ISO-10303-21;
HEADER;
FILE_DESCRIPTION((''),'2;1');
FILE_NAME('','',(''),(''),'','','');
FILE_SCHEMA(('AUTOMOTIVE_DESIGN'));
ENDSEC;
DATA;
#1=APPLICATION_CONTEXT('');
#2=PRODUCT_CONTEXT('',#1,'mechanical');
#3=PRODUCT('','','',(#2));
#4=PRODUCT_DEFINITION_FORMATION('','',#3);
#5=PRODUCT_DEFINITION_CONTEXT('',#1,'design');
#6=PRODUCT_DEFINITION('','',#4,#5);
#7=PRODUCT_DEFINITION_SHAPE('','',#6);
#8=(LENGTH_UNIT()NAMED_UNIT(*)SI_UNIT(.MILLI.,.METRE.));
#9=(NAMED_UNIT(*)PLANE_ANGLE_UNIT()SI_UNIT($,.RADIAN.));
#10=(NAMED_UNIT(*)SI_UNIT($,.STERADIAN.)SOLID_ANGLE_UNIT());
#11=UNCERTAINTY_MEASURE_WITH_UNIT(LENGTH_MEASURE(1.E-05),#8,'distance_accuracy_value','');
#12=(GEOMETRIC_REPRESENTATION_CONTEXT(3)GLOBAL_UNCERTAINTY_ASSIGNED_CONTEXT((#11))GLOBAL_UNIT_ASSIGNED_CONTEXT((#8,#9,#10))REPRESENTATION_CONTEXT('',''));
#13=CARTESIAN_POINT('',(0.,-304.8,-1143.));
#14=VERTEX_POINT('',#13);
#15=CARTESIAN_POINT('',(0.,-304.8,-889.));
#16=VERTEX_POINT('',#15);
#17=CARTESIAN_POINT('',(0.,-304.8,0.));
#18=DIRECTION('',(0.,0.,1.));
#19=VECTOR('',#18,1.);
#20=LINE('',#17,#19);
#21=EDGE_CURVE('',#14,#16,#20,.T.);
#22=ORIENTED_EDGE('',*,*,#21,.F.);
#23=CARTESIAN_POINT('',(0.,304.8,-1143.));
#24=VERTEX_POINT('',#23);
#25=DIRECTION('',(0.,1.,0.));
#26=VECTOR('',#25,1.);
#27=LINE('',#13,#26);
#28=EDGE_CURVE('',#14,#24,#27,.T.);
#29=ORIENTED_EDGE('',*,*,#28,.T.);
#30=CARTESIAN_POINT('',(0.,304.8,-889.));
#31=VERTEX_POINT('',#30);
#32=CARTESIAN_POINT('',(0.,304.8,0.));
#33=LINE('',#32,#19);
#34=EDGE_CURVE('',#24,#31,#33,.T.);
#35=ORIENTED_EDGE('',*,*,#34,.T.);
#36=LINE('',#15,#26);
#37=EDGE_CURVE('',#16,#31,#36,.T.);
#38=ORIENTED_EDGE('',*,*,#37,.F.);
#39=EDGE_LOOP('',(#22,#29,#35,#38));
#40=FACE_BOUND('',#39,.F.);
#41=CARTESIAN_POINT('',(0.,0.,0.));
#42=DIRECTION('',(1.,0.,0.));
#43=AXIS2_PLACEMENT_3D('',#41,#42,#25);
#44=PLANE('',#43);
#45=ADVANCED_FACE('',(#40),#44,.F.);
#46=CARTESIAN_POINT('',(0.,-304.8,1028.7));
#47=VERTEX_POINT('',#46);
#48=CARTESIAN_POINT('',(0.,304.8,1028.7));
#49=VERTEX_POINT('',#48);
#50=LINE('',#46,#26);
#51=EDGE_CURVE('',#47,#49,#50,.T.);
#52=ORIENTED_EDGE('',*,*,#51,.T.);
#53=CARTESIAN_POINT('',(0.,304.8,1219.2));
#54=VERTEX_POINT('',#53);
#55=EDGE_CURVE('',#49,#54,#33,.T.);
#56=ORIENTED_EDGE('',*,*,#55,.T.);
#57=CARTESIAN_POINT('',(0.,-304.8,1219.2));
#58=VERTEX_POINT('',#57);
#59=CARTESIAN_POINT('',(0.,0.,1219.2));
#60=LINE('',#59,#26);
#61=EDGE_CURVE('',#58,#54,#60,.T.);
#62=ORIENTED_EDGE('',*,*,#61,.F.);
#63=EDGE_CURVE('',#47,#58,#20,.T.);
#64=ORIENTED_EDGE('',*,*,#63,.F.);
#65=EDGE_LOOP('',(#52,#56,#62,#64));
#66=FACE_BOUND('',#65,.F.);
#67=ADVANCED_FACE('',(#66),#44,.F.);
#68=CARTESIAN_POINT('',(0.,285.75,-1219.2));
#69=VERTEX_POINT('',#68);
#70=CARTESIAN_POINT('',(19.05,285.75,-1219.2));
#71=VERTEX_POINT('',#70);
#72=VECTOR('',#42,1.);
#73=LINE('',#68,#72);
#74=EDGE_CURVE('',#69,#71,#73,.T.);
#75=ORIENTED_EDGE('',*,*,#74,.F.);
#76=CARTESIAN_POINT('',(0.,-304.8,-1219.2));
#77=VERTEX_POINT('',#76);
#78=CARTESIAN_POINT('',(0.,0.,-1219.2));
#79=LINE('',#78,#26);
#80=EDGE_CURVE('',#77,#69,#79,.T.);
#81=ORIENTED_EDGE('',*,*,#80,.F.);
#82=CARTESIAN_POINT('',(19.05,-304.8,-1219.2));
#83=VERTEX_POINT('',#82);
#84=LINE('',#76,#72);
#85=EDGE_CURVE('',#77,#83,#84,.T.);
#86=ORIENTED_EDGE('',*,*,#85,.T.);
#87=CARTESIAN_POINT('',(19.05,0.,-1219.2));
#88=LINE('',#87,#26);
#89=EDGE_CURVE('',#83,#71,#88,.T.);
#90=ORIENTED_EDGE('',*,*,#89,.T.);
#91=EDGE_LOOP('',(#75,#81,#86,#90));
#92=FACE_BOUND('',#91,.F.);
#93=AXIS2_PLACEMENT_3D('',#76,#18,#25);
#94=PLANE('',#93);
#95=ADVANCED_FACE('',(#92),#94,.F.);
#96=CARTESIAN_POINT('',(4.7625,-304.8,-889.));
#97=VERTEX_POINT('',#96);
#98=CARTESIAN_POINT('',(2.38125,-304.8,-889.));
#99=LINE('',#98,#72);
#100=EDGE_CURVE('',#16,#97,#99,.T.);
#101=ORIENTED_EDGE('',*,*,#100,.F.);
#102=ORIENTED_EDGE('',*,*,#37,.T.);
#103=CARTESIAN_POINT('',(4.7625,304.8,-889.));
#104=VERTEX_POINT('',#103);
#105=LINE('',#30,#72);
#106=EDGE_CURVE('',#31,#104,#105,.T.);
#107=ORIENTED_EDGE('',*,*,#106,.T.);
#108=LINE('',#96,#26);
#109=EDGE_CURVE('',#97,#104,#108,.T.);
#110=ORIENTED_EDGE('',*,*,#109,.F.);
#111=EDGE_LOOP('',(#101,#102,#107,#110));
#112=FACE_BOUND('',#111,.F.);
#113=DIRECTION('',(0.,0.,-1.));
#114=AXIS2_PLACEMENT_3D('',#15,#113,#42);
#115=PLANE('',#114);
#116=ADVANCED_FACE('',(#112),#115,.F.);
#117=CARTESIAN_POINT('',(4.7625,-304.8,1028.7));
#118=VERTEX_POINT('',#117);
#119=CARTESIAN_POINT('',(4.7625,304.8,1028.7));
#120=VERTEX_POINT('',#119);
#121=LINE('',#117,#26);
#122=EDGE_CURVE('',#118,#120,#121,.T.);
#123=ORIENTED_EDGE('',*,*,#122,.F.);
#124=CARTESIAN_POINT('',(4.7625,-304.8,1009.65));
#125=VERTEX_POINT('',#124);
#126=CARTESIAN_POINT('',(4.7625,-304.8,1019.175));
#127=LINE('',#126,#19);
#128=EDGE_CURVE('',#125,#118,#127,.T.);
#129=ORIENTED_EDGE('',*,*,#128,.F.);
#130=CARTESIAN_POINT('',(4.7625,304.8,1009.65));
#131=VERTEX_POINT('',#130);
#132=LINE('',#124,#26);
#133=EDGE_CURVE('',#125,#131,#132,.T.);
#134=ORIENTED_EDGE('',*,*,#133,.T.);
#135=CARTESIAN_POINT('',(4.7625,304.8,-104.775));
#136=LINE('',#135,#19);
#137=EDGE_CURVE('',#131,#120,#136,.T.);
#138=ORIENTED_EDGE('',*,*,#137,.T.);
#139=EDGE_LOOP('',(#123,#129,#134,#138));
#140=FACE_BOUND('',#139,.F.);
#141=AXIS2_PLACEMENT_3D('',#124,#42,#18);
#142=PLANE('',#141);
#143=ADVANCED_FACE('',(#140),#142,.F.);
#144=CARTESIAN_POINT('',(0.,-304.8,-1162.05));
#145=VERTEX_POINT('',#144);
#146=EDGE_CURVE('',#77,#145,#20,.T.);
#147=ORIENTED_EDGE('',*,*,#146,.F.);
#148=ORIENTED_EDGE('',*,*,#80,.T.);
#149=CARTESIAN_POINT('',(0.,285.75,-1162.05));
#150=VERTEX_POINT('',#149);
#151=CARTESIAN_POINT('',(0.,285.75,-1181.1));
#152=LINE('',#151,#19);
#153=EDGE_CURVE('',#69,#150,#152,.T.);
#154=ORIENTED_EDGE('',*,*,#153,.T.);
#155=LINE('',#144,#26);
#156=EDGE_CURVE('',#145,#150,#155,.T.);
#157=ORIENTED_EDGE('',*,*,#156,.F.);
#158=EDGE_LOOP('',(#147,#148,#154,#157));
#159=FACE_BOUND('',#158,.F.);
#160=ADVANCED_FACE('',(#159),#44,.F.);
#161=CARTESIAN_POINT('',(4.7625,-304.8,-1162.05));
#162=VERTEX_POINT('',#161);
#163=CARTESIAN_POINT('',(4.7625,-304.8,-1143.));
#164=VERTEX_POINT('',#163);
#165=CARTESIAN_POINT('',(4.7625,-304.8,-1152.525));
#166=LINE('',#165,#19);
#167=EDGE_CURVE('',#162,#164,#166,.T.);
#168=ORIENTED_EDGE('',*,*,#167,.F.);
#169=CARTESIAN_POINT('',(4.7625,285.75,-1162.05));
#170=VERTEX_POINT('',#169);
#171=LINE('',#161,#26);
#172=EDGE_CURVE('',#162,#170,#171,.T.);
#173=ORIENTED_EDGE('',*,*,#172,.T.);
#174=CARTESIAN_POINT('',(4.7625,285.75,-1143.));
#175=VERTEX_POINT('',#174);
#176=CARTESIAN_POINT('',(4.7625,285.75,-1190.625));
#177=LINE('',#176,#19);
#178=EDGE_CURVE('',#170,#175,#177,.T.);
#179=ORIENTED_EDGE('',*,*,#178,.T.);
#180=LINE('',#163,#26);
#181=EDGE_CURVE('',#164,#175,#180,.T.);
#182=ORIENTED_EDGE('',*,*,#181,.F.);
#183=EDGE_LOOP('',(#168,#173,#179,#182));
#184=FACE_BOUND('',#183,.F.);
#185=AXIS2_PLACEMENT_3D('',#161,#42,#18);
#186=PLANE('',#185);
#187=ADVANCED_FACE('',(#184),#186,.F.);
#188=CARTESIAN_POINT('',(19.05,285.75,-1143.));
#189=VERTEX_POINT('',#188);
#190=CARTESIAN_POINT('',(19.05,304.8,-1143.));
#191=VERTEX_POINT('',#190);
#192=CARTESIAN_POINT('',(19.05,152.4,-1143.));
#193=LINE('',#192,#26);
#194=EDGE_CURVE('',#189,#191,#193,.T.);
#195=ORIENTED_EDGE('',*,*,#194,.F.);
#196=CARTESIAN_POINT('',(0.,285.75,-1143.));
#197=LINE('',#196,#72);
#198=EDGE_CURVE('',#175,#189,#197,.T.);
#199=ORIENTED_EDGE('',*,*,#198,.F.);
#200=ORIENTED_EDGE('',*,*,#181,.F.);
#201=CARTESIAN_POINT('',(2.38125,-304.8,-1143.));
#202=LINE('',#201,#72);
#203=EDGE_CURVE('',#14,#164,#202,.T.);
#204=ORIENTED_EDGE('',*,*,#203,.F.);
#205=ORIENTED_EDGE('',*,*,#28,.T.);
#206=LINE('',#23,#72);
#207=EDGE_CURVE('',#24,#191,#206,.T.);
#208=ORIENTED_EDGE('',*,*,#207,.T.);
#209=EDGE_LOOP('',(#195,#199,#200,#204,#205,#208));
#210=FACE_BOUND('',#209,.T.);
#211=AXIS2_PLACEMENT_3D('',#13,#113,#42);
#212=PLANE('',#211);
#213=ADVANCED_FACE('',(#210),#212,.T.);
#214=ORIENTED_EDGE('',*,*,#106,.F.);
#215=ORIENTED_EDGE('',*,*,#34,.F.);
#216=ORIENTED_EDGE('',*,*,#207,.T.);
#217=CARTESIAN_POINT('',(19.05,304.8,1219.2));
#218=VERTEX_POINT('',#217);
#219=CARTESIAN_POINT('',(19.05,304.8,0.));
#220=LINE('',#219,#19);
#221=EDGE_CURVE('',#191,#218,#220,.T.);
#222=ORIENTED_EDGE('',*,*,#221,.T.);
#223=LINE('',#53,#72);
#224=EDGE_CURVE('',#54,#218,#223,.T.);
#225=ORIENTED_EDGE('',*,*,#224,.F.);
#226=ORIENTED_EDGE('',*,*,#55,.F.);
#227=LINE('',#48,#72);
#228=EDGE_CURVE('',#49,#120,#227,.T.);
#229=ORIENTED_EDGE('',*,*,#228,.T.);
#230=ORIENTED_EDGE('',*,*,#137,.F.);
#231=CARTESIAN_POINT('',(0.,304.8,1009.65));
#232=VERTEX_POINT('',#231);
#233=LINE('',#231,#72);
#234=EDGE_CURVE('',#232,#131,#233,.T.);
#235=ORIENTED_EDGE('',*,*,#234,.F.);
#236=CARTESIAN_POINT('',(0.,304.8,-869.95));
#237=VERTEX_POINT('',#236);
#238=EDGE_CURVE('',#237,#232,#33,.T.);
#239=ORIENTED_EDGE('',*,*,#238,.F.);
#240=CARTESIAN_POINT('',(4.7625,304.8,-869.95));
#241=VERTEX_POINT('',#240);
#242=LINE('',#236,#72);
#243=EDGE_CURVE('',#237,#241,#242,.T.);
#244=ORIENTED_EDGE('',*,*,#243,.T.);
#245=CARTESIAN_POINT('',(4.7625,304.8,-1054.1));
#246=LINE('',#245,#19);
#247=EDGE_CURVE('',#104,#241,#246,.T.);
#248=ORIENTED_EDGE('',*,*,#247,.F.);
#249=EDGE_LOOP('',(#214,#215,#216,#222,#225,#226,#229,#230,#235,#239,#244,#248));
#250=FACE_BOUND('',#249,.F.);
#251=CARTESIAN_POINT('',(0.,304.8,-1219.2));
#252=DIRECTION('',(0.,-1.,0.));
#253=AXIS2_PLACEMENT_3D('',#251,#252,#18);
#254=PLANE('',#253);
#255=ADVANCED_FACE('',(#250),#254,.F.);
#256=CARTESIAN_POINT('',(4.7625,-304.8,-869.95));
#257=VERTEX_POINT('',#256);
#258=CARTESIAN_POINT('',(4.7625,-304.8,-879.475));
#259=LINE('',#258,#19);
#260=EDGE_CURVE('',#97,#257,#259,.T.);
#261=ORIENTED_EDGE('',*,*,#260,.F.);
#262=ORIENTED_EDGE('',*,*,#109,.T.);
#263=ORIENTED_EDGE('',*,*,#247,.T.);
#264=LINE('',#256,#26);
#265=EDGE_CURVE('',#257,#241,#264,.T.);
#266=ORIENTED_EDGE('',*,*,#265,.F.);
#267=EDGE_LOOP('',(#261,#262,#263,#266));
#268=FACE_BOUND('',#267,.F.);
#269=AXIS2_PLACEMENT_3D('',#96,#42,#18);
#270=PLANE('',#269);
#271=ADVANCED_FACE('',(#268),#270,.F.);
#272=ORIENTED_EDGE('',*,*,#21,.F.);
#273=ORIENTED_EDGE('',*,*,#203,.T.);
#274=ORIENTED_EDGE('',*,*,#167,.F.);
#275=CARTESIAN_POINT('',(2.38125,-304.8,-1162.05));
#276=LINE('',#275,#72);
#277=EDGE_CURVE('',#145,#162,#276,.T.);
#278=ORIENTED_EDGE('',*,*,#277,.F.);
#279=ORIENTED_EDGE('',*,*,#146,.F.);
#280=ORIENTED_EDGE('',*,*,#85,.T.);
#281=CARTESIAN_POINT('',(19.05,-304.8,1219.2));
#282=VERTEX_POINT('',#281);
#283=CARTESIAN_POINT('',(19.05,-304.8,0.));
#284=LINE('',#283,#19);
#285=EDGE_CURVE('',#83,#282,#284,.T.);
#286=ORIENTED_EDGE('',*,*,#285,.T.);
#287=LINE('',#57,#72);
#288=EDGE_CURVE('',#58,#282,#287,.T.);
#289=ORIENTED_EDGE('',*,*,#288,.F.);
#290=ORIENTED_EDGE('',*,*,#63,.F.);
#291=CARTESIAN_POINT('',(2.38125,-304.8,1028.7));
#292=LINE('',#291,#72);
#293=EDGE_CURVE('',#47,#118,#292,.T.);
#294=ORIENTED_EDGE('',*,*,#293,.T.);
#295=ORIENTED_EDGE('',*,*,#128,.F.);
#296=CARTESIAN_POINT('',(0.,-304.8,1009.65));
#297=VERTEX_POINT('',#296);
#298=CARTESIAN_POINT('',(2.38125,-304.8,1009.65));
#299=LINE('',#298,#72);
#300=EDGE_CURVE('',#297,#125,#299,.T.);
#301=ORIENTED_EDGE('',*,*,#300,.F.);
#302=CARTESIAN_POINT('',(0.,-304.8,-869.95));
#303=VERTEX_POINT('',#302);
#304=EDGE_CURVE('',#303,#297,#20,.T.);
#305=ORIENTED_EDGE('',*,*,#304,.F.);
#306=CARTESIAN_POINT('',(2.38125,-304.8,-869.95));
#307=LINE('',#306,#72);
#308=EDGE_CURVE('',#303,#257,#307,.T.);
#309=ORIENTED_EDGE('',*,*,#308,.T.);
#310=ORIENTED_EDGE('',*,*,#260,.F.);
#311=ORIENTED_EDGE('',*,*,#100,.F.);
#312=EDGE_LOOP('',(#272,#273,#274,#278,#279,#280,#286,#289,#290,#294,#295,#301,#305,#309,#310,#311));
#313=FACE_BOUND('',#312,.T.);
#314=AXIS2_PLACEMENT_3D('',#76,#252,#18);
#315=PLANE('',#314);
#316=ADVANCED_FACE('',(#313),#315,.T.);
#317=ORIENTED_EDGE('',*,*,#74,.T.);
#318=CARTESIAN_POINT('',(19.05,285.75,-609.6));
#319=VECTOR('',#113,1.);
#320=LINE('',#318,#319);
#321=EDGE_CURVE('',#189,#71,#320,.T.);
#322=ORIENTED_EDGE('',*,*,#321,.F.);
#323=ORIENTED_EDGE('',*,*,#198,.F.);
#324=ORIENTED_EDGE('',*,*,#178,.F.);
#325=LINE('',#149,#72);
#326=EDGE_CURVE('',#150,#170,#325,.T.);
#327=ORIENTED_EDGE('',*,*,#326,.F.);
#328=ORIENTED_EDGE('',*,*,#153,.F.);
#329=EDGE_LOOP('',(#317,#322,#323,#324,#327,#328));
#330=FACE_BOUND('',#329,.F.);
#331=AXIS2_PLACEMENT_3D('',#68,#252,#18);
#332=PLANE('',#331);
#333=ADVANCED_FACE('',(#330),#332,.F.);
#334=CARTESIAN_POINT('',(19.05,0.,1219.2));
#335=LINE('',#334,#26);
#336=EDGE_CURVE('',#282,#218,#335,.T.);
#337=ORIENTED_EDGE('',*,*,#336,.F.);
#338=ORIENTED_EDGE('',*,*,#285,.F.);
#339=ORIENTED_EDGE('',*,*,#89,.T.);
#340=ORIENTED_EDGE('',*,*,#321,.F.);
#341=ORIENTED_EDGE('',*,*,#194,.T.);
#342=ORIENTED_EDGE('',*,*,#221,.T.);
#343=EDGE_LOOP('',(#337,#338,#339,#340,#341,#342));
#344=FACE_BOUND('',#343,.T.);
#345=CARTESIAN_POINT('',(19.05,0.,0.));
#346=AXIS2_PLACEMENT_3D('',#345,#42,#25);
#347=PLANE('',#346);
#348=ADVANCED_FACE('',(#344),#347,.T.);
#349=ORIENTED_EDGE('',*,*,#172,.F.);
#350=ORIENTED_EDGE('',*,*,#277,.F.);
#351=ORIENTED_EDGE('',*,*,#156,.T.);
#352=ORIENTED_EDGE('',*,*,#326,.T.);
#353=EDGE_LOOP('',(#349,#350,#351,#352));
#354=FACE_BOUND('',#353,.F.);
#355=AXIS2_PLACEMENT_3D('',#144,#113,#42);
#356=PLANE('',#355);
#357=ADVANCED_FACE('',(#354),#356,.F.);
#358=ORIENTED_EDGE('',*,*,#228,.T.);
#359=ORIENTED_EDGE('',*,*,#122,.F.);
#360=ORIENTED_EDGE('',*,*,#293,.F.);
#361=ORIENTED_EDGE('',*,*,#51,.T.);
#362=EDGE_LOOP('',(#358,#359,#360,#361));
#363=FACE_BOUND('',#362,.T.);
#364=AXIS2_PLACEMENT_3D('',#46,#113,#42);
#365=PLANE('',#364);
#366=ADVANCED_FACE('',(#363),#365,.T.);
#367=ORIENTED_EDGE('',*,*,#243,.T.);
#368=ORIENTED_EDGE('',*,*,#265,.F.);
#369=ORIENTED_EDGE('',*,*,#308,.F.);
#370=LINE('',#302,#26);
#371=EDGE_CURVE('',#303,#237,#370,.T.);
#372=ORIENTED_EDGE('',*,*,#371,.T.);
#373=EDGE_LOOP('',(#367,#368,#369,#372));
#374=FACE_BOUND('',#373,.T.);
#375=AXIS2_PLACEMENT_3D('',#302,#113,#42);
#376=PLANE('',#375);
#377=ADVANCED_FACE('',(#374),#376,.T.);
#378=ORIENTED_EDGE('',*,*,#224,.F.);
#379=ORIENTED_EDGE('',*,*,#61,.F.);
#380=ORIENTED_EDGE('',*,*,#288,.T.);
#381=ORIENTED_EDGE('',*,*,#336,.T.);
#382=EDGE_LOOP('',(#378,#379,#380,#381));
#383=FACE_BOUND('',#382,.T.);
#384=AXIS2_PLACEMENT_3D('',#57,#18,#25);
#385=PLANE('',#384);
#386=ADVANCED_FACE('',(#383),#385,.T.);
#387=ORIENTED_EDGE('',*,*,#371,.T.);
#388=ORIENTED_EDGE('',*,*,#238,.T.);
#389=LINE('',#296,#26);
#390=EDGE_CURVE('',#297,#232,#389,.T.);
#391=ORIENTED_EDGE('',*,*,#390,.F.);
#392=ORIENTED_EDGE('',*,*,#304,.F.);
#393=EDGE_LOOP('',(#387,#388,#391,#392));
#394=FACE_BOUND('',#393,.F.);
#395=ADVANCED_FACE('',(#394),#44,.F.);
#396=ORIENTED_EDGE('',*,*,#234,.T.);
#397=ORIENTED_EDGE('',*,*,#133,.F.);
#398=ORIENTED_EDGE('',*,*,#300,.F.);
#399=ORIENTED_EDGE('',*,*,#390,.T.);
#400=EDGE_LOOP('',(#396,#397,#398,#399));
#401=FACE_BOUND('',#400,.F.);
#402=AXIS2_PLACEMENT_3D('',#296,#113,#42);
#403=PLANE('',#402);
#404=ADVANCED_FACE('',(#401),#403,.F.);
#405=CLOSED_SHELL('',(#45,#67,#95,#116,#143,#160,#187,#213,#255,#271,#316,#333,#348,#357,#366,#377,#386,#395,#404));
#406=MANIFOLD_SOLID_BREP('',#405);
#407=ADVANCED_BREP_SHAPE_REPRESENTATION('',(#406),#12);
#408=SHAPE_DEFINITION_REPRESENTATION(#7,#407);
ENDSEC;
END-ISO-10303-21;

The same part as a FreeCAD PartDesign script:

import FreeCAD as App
import Part
import Sketcher

V = App.Vector
Q = App.Units.Quantity

doc = App.newDocument("Part")
params = doc.addObject("Spreadsheet::Sheet", "Params")
for row, (alias, value) in enumerate([
    ("sketch1_width", "24 in"),
    ("sketch1_height", "96 in"),
    ("pad1_length", "0.75 in"),
    ("sketch2_height", "3 in"),
    ("sketch2_width", "0.75 in"),
    ("pocket1_length", "1 in"),
    ("sketch3_height", "0.75 in"),
    ("sketch3_width", "0.1875 in"),
], start=1):
    params.set(f"A{row}", alias)
    params.set(f"B{row}", "=" + value)
    params.setAlias(f"B{row}", alias)

body = doc.addObject("PartDesign::Body", "Body")

# Sketch on YZ plane
sketch1 = body.newObject("Sketcher::SketchObject", "Sketch")
sketch1.AttachmentSupport = (doc.getObject("YZ_Plane"), [""])
sketch1.MapMode = "FlatFace"
sketch1.addGeometry([
    Part.LineSegment(V(-305, 1219, 0), V(-305, -1219, 0)),
    Part.LineSegment(V(-305, -1219, 0), V(305, -1219, 0)),
    Part.LineSegment(V(305, -1219, 0), V(305, 1219, 0)),
    Part.LineSegment(V(305, 1219, 0), V(-305, 1219, 0)),
], False)
sketch1.addConstraint([
    Sketcher.Constraint("Coincident", 0, 2, 1, 1),
    Sketcher.Constraint("Coincident", 1, 2, 2, 1),
    Sketcher.Constraint("Coincident", 2, 2, 3, 1),
    Sketcher.Constraint("Coincident", 3, 2, 0, 1),
    Sketcher.Constraint("Vertical", 0),
    Sketcher.Constraint("Horizontal", 1),
    Sketcher.Constraint("Vertical", 2),
    Sketcher.Constraint("Horizontal", 3),
    Sketcher.Constraint("Symmetric", 0, 2, 2, 2, -1, 1),
    Sketcher.Constraint("DistanceX", 1, 1, 1, 2, Q("24 in")),
    Sketcher.Constraint("DistanceY", 0, 2, 0, 1, Q("96 in")),
])
sketch1.setExpression("Constraints[9]", "Params.sketch1_width")
sketch1.setExpression("Constraints[10]", "Params.sketch1_height")
pad1 = body.newObject("PartDesign::Pad", "Pad")
pad1.Profile = sketch1
pad1.setExpression("Length", "Params.pad1_length")

# Sketch on YZ plane
sketch2 = body.newObject("Sketcher::SketchObject", "Sketch001")
sketch2.AttachmentSupport = (doc.getObject("YZ_Plane"), [""])
sketch2.MapMode = "FlatFace"
sketch2.addGeometry([
    Part.LineSegment(V(305, -1143, 0), V(305, -1219, 0)),
    Part.LineSegment(V(305, -1219, 0), V(286, -1219, 0)),
    Part.LineSegment(V(286, -1219, 0), V(286, -1143, 0)),
    Part.LineSegment(V(286, -1143, 0), V(305, -1143, 0)),
], False)
sketch2.addConstraint([
    Sketcher.Constraint("Coincident", 0, 2, 1, 1),
    Sketcher.Constraint("Coincident", 1, 2, 2, 1),
    Sketcher.Constraint("Coincident", 2, 2, 3, 1),
    Sketcher.Constraint("Coincident", 3, 2, 0, 1),
    Sketcher.Constraint("Vertical", 0),
    Sketcher.Constraint("Horizontal", 1),
    Sketcher.Constraint("Vertical", 2),
    Sketcher.Constraint("Horizontal", 3),
    Sketcher.Constraint("DistanceY", 0, 2, 0, 1, Q("3 in")),
    Sketcher.Constraint("DistanceX", -1, 1, 0, 2, Q("12 in")),
    Sketcher.Constraint("DistanceY", 0, 2, -1, 1, Q("48 in")),
    Sketcher.Constraint("DistanceX", 1, 2, 1, 1, Q("0.75 in")),
])
sketch2.setExpression("Constraints[8]", "Params.sketch2_height")
sketch2.setExpression("Constraints[11]", "Params.sketch2_width")
pocket1 = body.newObject("PartDesign::Pocket", "Pocket")
pocket1.Profile = sketch2
pocket1.setExpression("Length", "Params.pocket1_length")
pocket1.Reversed = True

# Sketch on XZ plane
sketch3 = body.newObject("Sketcher::SketchObject", "Sketch002")
sketch3.AttachmentSupport = (doc.getObject("XZ_Plane"), [""])
sketch3.MapMode = "FlatFace"
sketch3.AttachmentOffset = App.Placement(V(0, 0, 12 * 25.4), App.Rotation())
sketch3.addGeometry([
    Part.LineSegment(V(0, -1143, 0), V(0, -1162, 0)),  # 0
    Part.LineSegment(V(0, -1162, 0), V(4.8, -1162, 0)),  # 1
    Part.LineSegment(V(4.8, -1162, 0), V(4.8, -1143, 0)),  # 2
    Part.LineSegment(V(4.8, -1143, 0), V(0, -1143, 0)),  # 3
    Part.LineSegment(V(0, -870, 0), V(0, -889, 0)),  # 4
    Part.LineSegment(V(0, -889, 0), V(4.8, -889, 0)),  # 5
    Part.LineSegment(V(4.8, -889, 0), V(4.8, -870, 0)),  # 6
    Part.LineSegment(V(4.8, -870, 0), V(0, -870, 0)),  # 7
    Part.LineSegment(V(0, 1028.7, 0), V(0, 1009.6, 0)),  # 8
    Part.LineSegment(V(0, 1009.6, 0), V(4.8, 1009.6, 0)),  # 9
    Part.LineSegment(V(4.8, 1009.6, 0), V(4.8, 1028.7, 0)),  # 10
    Part.LineSegment(V(4.8, 1028.7, 0), V(0, 1028.7, 0)),  # 11
], False)
sketch3.addConstraint([
    Sketcher.Constraint("Coincident", 0, 2, 1, 1),
    Sketcher.Constraint("Coincident", 1, 2, 2, 1),
    Sketcher.Constraint("Coincident", 2, 2, 3, 1),
    Sketcher.Constraint("Coincident", 3, 2, 0, 1),
    Sketcher.Constraint("Coincident", 4, 2, 5, 1),
    Sketcher.Constraint("Coincident", 5, 2, 6, 1),
    Sketcher.Constraint("Coincident", 6, 2, 7, 1),
    Sketcher.Constraint("Coincident", 7, 2, 4, 1),
    Sketcher.Constraint("Coincident", 8, 2, 9, 1),
    Sketcher.Constraint("Coincident", 9, 2, 10, 1),
    Sketcher.Constraint("Coincident", 10, 2, 11, 1),
    Sketcher.Constraint("Coincident", 11, 2, 8, 1),
    Sketcher.Constraint("Vertical", 0),
    Sketcher.Constraint("Horizontal", 1),
    Sketcher.Constraint("Vertical", 2),
    Sketcher.Constraint("Horizontal", 3),
    Sketcher.Constraint("Vertical", 4),
    Sketcher.Constraint("Horizontal", 5),
    Sketcher.Constraint("Vertical", 6),
    Sketcher.Constraint("Horizontal", 7),
    Sketcher.Constraint("Vertical", 8),
    Sketcher.Constraint("Horizontal", 9),
    Sketcher.Constraint("Vertical", 10),
    Sketcher.Constraint("Horizontal", 11),
    Sketcher.Constraint("PointOnObject", 0, 2, -2),
    Sketcher.Constraint("PointOnObject", 4, 2, -2),
    Sketcher.Constraint("PointOnObject", 8, 2, -2),
    Sketcher.Constraint("Vertical", 2, 2, 5, 2),
    Sketcher.Constraint("Vertical", 6, 2, 9, 2),
    Sketcher.Constraint("Equal", 2, 4),
    Sketcher.Constraint("Equal", 6, 8),
    Sketcher.Constraint("DistanceY", 2, 2, -1, 1, Q("45 in")),
    Sketcher.Constraint("DistanceY", 4, 2, -1, 1, Q("35 in")),
    Sketcher.Constraint("DistanceY", 7, 2, 8, 2, Q("74 in")),
    Sketcher.Constraint("DistanceY", 0, 2, 0, 1, Q("0.75 in")),
    Sketcher.Constraint("DistanceX", 1, 1, 1, 2, Q("0.1875 in")),
])
sketch3.setExpression("Constraints[34]", "Params.sketch3_height")
sketch3.setExpression("Constraints[35]", "Params.sketch3_width")
pocket2 = body.newObject("PartDesign::Pocket", "Pocket001")
pocket2.Profile = sketch3
pocket2.Type = "ThroughAll"

doc.recompute()
